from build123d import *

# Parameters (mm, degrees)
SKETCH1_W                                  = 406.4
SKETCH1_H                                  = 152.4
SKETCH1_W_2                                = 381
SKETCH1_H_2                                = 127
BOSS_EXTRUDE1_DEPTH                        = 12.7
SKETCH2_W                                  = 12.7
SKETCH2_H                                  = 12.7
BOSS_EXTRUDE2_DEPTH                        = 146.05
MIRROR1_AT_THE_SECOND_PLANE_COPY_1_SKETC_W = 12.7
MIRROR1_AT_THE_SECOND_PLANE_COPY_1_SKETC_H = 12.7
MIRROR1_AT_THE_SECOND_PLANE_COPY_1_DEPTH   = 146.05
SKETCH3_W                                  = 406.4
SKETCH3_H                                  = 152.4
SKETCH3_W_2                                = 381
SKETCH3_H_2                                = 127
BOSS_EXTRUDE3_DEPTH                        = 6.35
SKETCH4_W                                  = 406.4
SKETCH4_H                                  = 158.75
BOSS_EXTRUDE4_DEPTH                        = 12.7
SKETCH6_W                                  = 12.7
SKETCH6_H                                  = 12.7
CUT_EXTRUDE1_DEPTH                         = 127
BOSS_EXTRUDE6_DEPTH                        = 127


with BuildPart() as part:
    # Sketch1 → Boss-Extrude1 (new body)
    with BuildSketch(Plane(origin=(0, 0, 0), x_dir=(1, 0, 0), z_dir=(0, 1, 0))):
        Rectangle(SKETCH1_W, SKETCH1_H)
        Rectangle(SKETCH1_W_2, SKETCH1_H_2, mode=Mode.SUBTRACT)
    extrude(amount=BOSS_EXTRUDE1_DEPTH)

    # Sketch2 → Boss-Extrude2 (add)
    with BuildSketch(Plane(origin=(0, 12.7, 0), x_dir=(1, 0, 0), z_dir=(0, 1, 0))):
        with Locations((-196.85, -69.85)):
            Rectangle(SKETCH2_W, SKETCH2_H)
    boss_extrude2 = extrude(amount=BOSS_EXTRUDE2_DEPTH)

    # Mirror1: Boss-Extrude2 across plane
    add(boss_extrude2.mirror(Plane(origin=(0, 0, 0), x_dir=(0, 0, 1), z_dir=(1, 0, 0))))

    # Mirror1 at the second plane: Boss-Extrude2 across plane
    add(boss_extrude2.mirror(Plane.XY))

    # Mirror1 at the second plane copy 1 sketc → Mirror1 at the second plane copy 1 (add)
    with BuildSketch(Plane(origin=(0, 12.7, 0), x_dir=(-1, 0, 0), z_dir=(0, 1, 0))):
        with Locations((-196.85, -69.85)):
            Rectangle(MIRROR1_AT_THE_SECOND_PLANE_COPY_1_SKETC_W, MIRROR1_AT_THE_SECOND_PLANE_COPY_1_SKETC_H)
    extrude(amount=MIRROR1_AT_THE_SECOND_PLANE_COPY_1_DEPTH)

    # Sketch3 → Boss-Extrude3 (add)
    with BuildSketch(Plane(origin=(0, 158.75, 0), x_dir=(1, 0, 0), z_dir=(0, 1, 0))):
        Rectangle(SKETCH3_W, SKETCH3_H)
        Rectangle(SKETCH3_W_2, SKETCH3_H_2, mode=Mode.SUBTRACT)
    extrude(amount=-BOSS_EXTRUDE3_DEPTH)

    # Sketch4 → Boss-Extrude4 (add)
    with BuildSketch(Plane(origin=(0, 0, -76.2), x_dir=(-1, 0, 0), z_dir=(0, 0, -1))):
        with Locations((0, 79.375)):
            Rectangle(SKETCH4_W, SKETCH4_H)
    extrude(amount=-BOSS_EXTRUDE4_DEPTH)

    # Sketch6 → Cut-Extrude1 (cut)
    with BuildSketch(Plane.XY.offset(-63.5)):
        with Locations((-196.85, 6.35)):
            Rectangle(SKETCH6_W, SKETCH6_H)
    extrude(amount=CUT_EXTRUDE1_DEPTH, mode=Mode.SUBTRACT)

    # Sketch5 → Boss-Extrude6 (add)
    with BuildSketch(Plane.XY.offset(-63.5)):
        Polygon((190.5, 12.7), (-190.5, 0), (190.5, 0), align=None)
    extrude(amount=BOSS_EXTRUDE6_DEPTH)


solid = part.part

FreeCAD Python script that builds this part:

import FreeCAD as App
import Part
import Sketcher
Q = App.Units.Quantity

doc = App.newDocument("Part")
params = doc.addObject("Spreadsheet::Sheet", "Params")
for row, (alias, value) in enumerate([
    ("sketch1_width", "16 in"),
    ("sketch1_width2", "15 in"),
    ("sketch1_height", "6 in"),
    ("sketch1_height2", "5 in"),
    ("pad1_length", "0.5 in"),
    ("sketch2_width", "0.5 in"),
    ("pad2_length", "5.75 in"),
    ("sketch3_width", "0.5 in"),
    ("pad3_length", "5.75 in"),
    ("sketch4_width", "16 in"),
    ("sketch4_width2", "15 in"),
    ("sketch4_height", "6 in"),
    ("sketch4_height2", "5 in"),
    ("pad4_length", "0.25 in"),
    ("sketch5_width", "16 in"),
    ("sketch5_height", "6.25 in"),
    ("pad5_length", "0.5 in"),
    ("sketch6_width", "0.5 in"),
    ("pocket1_length", "5 in"),
    ("sketch7_width", "15 in"),
    ("sketch7_height", "0.5 in"),
    ("pad6_length", "5 in"),
], start=1):
    params.set(f"A{row}", alias)
    params.set(f"B{row}", "=" + value)
    params.setAlias(f"B{row}", alias)

body = doc.addObject("PartDesign::Body", "Body")

# Sketch on XZ plane
sketch1 = body.newObject("Sketcher::SketchObject", "Sketch")
sketch1.AttachmentSupport = (doc.getObject("XZ_Plane"), [""])
sketch1.MapMode = "FlatFace"
sketch1.addGeometry(Part.LineSegment(App.Vector(-203, -76, 0), App.Vector(-203, 76, 0)), False)
sketch1.addGeometry(Part.LineSegment(App.Vector(-203, 76, 0), App.Vector(203, 76, 0)), False)
sketch1.addGeometry(Part.LineSegment(App.Vector(203, 76, 0), App.Vector(203, -76, 0)), False)
sketch1.addGeometry(Part.LineSegment(App.Vector(203, -76, 0), App.Vector(-203, -76, 0)), False)
sketch1.addGeometry(Part.LineSegment(App.Vector(190, 64, 0), App.Vector(-190, 64, 0)), False)
sketch1.addGeometry(Part.LineSegment(App.Vector(-190, 64, 0), App.Vector(-190, -64, 0)), False)
sketch1.addGeometry(Part.LineSegment(App.Vector(-190, -64, 0), App.Vector(190, -64, 0)), False)
sketch1.addGeometry(Part.LineSegment(App.Vector(190, -64, 0), App.Vector(190, 64, 0)), False)
sketch1.addConstraint(Sketcher.Constraint("Coincident", 0, 2, 1, 1))
sketch1.addConstraint(Sketcher.Constraint("Coincident", 1, 2, 2, 1))
sketch1.addConstraint(Sketcher.Constraint("Coincident", 2, 2, 3, 1))
sketch1.addConstraint(Sketcher.Constraint("Coincident", 3, 2, 0, 1))
sketch1.addConstraint(Sketcher.Constraint("Coincident", 4, 2, 5, 1))
sketch1.addConstraint(Sketcher.Constraint("Coincident", 5, 2, 6, 1))
sketch1.addConstraint(Sketcher.Constraint("Coincident", 6, 2, 7, 1))
sketch1.addConstraint(Sketcher.Constraint("Coincident", 7, 2, 4, 1))
sketch1.addConstraint(Sketcher.Constraint("Vertical", 0))
sketch1.addConstraint(Sketcher.Constraint("Horizontal", 1))
sketch1.addConstraint(Sketcher.Constraint("Vertical", 2))
sketch1.addConstraint(Sketcher.Constraint("Horizontal", 3))
sketch1.addConstraint(Sketcher.Constraint("Horizontal", 4))
sketch1.addConstraint(Sketcher.Constraint("Vertical", 5))
sketch1.addConstraint(Sketcher.Constraint("Horizontal", 6))
sketch1.addConstraint(Sketcher.Constraint("Vertical", 7))
sketch1.addConstraint(Sketcher.Constraint("Symmetric", 0, 2, 2, 2, -1, 1))
sketch1.addConstraint(Sketcher.Constraint("Symmetric", 4, 2, 6, 2, -1, 1))
sketch1.addConstraint(Sketcher.Constraint("DistanceX", 1, 1, 1, 2, Q("16 in")))
sketch1.addConstraint(Sketcher.Constraint("DistanceX", 4, 2, 4, 1, Q("15 in")))
sketch1.addConstraint(Sketcher.Constraint("DistanceY", 0, 1, 0, 2, Q("6 in")))
sketch1.addConstraint(Sketcher.Constraint("DistanceY", 5, 2, 5, 1, Q("5 in")))
sketch1.setExpression("Constraints[18]", "Params.sketch1_width")
sketch1.setExpression("Constraints[19]", "Params.sketch1_width2")
sketch1.setExpression("Constraints[20]", "Params.sketch1_height")
sketch1.setExpression("Constraints[21]", "Params.sketch1_height2")
pad1 = body.newObject("PartDesign::Pad", "Pad")
pad1.Profile = sketch1
pad1.setExpression("Length", "Params.pad1_length")
pad1.Reversed = True

# Sketch on XZ plane
sketch2 = body.newObject("Sketcher::SketchObject", "Sketch001")
sketch2.AttachmentSupport = (doc.getObject("XZ_Plane"), [""])
sketch2.MapMode = "FlatFace"
sketch2.AttachmentOffset = App.Placement(App.Vector(0, 0, -0.5 * 25.4), App.Rotation())
sketch2.addGeometry(Part.LineSegment(App.Vector(-203, 64, 0), App.Vector(-203, 76, 0)), False)
sketch2.addGeometry(Part.LineSegment(App.Vector(-203, 76, 0), App.Vector(-190, 76, 0)), False)
sketch2.addGeometry(Part.LineSegment(App.Vector(-190, 76, 0), App.Vector(-190, 64, 0)), False)
sketch2.addGeometry(Part.LineSegment(App.Vector(-190, 64, 0), App.Vector(-203, 64, 0)), False)
sketch2.addConstraint(Sketcher.Constraint("Coincident", 0, 2, 1, 1))
sketch2.addConstraint(Sketcher.Constraint("Coincident", 1, 2, 2, 1))
sketch2.addConstraint(Sketcher.Constraint("Coincident", 2, 2, 3, 1))
sketch2.addConstraint(Sketcher.Constraint("Coincident", 3, 2, 0, 1))
sketch2.addConstraint(Sketcher.Constraint("Vertical", 0))
sketch2.addConstraint(Sketcher.Constraint("Horizontal", 1))
sketch2.addConstraint(Sketcher.Constraint("Vertical", 2))
sketch2.addConstraint(Sketcher.Constraint("Horizontal", 3))
sketch2.addConstraint(Sketcher.Constraint("Equal", 3, 0))
sketch2.addConstraint(Sketcher.Constraint("DistanceX", 1, 1, 1, 2, Q("0.5 in")))
sketch2.addConstraint(Sketcher.Constraint("DistanceX", 0, 2, -1, 1, Q("8 in")))
sketch2.addConstraint(Sketcher.Constraint("DistanceY", -1, 1, 0, 2, Q("3 in")))
sketch2.setExpression("Constraints[9]", "Params.sketch2_width")
pad2 = body.newObject("PartDesign::Pad", "Pad001")
pad2.Profile = sketch2
pad2.setExpression("Length", "Params.pad2_length")
pad2.Reversed = True
doc.recompute()

mirrored = body.newObject("PartDesign::Mirrored", "Mirrored")
mirrored.Originals = [pad2]
mirrored.MirrorPlane = (doc.getObject("YZ_Plane"), [""])
body.Tip = mirrored
doc.recompute()

mirrored2 = body.newObject("PartDesign::Mirrored", "Mirrored001")
mirrored2.Originals = [pad2]
mirrored2.MirrorPlane = (doc.getObject("XY_Plane"), [""])
body.Tip = mirrored2

# Sketch on XZ plane
sketch3 = body.newObject("Sketcher::SketchObject", "Sketch002")
sketch3.AttachmentSupport = (doc.getObject("XZ_Plane"), [""])
sketch3.MapMode = "FlatFace"
sketch3.AttachmentOffset = App.Placement(App.Vector(0, 0, -0.5 * 25.4), App.Rotation())
sketch3.addGeometry(Part.LineSegment(App.Vector(203, -64, 0), App.Vector(203, -76, 0)), False)
sketch3.addGeometry(Part.LineSegment(App.Vector(203, -76, 0), App.Vector(190, -76, 0)), False)
sketch3.addGeometry(Part.LineSegment(App.Vector(190, -76, 0), App.Vector(190, -64, 0)), False)
sketch3.addGeometry(Part.LineSegment(App.Vector(190, -64, 0), App.Vector(203, -64, 0)), False)
sketch3.addConstraint(Sketcher.Constraint("Coincident", 0, 2, 1, 1))
sketch3.addConstraint(Sketcher.Constraint("Coincident", 1, 2, 2, 1))
sketch3.addConstraint(Sketcher.Constraint("Coincident", 2, 2, 3, 1))
sketch3.addConstraint(Sketcher.Constraint("Coincident", 3, 2, 0, 1))
sketch3.addConstraint(Sketcher.Constraint("Vertical", 0))
sketch3.addConstraint(Sketcher.Constraint("Horizontal", 1))
sketch3.addConstraint(Sketcher.Constraint("Vertical", 2))
sketch3.addConstraint(Sketcher.Constraint("Horizontal", 3))
sketch3.addConstraint(Sketcher.Constraint("Equal", 3, 0))
sketch3.addConstraint(Sketcher.Constraint("DistanceX", 1, 2, 1, 1, Q("0.5 in")))
sketch3.addConstraint(Sketcher.Constraint("DistanceX", -1, 1, 0, 2, Q("8 in")))
sketch3.addConstraint(Sketcher.Constraint("DistanceY", 0, 2, -1, 1, Q("3 in")))
sketch3.setExpression("Constraints[9]", "Params.sketch3_width")
pad3 = body.newObject("PartDesign::Pad", "Pad002")
pad3.Profile = sketch3
pad3.setExpression("Length", "Params.pad3_length")
pad3.Reversed = True

# Sketch on XZ plane
sketch4 = body.newObject("Sketcher::SketchObject", "Sketch003")
sketch4.AttachmentSupport = (doc.getObject("XZ_Plane"), [""])
sketch4.MapMode = "FlatFace"
sketch4.AttachmentOffset = App.Placement(App.Vector(0, 0, -6.25 * 25.4), App.Rotation())
sketch4.addGeometry(Part.LineSegment(App.Vector(-203, -76, 0), App.Vector(-203, 76, 0)), False)
sketch4.addGeometry(Part.LineSegment(App.Vector(-203, 76, 0), App.Vector(203, 76, 0)), False)
sketch4.addGeometry(Part.LineSegment(App.Vector(203, 76, 0), App.Vector(203, -76, 0)), False)
sketch4.addGeometry(Part.LineSegment(App.Vector(203, -76, 0), App.Vector(-203, -76, 0)), False)
sketch4.addGeometry(Part.LineSegment(App.Vector(190, 64, 0), App.Vector(-190, 64, 0)), False)
sketch4.addGeometry(Part.LineSegment(App.Vector(-190, 64, 0), App.Vector(-190, -64, 0)), False)
sketch4.addGeometry(Part.LineSegment(App.Vector(-190, -64, 0), App.Vector(190, -64, 0)), False)
sketch4.addGeometry(Part.LineSegment(App.Vector(190, -64, 0), App.Vector(190, 64, 0)), False)
sketch4.addConstraint(Sketcher.Constraint("Coincident", 0, 2, 1, 1))
sketch4.addConstraint(Sketcher.Constraint("Coincident", 1, 2, 2, 1))
sketch4.addConstraint(Sketcher.Constraint("Coincident", 2, 2, 3, 1))
sketch4.addConstraint(Sketcher.Constraint("Coincident", 3, 2, 0, 1))
sketch4.addConstraint(Sketcher.Constraint("Coincident", 4, 2, 5, 1))
sketch4.addConstraint(Sketcher.Constraint("Coincident", 5, 2, 6, 1))
sketch4.addConstraint(Sketcher.Constraint("Coincident", 6, 2, 7, 1))
sketch4.addConstraint(Sketcher.Constraint("Coincident", 7, 2, 4, 1))
sketch4.addConstraint(Sketcher.Constraint("Vertical", 0))
sketch4.addConstraint(Sketcher.Constraint("Horizontal", 1))
sketch4.addConstraint(Sketcher.Constraint("Vertical", 2))
sketch4.addConstraint(Sketcher.Constraint("Horizontal", 3))
sketch4.addConstraint(Sketcher.Constraint("Horizontal", 4))
sketch4.addConstraint(Sketcher.Constraint("Vertical", 5))
sketch4.addConstraint(Sketcher.Constraint("Horizontal", 6))
sketch4.addConstraint(Sketcher.Constraint("Vertical", 7))
sketch4.addConstraint(Sketcher.Constraint("Symmetric", 0, 2, 2, 2, -1, 1))
sketch4.addConstraint(Sketcher.Constraint("Symmetric", 4, 2, 6, 2, -1, 1))
sketch4.addConstraint(Sketcher.Constraint("DistanceX", 1, 1, 1, 2, Q("16 in")))
sketch4.addConstraint(Sketcher.Constraint("DistanceX", 4, 2, 4, 1, Q("15 in")))
sketch4.addConstraint(Sketcher.Constraint("DistanceY", 0, 1, 0, 2, Q("6 in")))
sketch4.addConstraint(Sketcher.Constraint("DistanceY", 5, 2, 5, 1, Q("5 in")))
sketch4.setExpression("Constraints[18]", "Params.sketch4_width")
sketch4.setExpression("Constraints[19]", "Params.sketch4_width2")
sketch4.setExpression("Constraints[20]", "Params.sketch4_height")
sketch4.setExpression("Constraints[21]", "Params.sketch4_height2")
pad4 = body.newObject("PartDesign::Pad", "Pad003")
pad4.Profile = sketch4
pad4.setExpression("Length", "Params.pad4_length")

# Sketch on XY plane
sketch5 = body.newObject("Sketcher::SketchObject", "Sketch004")
sketch5.AttachmentSupport = (doc.getObject("XY_Plane"), [""])
sketch5.MapMode = "FlatFace"
sketch5.AttachmentOffset = App.Placement(App.Vector(0, 0, -3 * 25.4), App.Rotation())
sketch5.addGeometry(Part.LineSegment(App.Vector(203, 159, 0), App.Vector(203, 0, 0)), False)
sketch5.addGeometry(Part.LineSegment(App.Vector(203, 0, 0), App.Vector(-203, 0, 0)), False)
sketch5.addGeometry(Part.LineSegment(App.Vector(-203, 0, 0), App.Vector(-203, 159, 0)), False)
sketch5.addGeometry(Part.LineSegment(App.Vector(-203, 159, 0), App.Vector(203, 159, 0)), False)
sketch5.addConstraint(Sketcher.Constraint("Coincident", 0, 2, 1, 1))
sketch5.addConstraint(Sketcher.Constraint("Coincident", 1, 2, 2, 1))
sketch5.addConstraint(Sketcher.Constraint("Coincident", 2, 2, 3, 1))
sketch5.addConstraint(Sketcher.Constraint("Coincident", 3, 2, 0, 1))
sketch5.addConstraint(Sketcher.Constraint("Vertical", 0))
sketch5.addConstraint(Sketcher.Constraint("Horizontal", 1))
sketch5.addConstraint(Sketcher.Constraint("Vertical", 2))
sketch5.addConstraint(Sketcher.Constraint("Horizontal", 3))
sketch5.addConstraint(Sketcher.Constraint("Symmetric", 0, 2, 1, 2, -1, 1))
sketch5.addConstraint(Sketcher.Constraint("DistanceX", 1, 2, 1, 1, Q("16 in")))
sketch5.addConstraint(Sketcher.Constraint("DistanceY", 0, 2, 0, 1, Q("6.25 in")))
sketch5.setExpression("Constraints[9]", "Params.sketch5_width")
sketch5.setExpression("Constraints[10]", "Params.sketch5_height")
pad5 = body.newObject("PartDesign::Pad", "Pad004")
pad5.Profile = sketch5
pad5.setExpression("Length", "Params.pad5_length")

# Sketch on XY plane
sketch6 = body.newObject("Sketcher::SketchObject", "Sketch005")
sketch6.AttachmentSupport = (doc.getObject("XY_Plane"), [""])
sketch6.MapMode = "FlatFace"
sketch6.AttachmentOffset = App.Placement(App.Vector(0, 0, -2.5 * 25.4), App.Rotation())
sketch6.addGeometry(Part.LineSegment(App.Vector(-203, 13, 0), App.Vector(-203, 0, 0)), False)
sketch6.addGeometry(Part.LineSegment(App.Vector(-203, 0, 0), App.Vector(-190, 0, 0)), False)
sketch6.addGeometry(Part.LineSegment(App.Vector(-190, 0, 0), App.Vector(-190, 13, 0)), False)
sketch6.addGeometry(Part.LineSegment(App.Vector(-190, 13, 0), App.Vector(-203, 13, 0)), False)
sketch6.addConstraint(Sketcher.Constraint("Coincident", 0, 2, 1, 1))
sketch6.addConstraint(Sketcher.Constraint("Coincident", 1, 2, 2, 1))
sketch6.addConstraint(Sketcher.Constraint("Coincident", 2, 2, 3, 1))
sketch6.addConstraint(Sketcher.Constraint("Coincident", 3, 2, 0, 1))
sketch6.addConstraint(Sketcher.Constraint("Vertical", 0))
sketch6.addConstraint(Sketcher.Constraint("Horizontal", 1))
sketch6.addConstraint(Sketcher.Constraint("Vertical", 2))
sketch6.addConstraint(Sketcher.Constraint("Horizontal", 3))
sketch6.addConstraint(Sketcher.Constraint("PointOnObject", 0, 2, -1))
sketch6.addConstraint(Sketcher.Constraint("Equal", 3, 0))
sketch6.addConstraint(Sketcher.Constraint("DistanceX", 1, 1, 1, 2, Q("0.5 in")))
sketch6.addConstraint(Sketcher.Constraint("DistanceX", 0, 2, -1, 1, Q("8 in")))
sketch6.setExpression("Constraints[10]", "Params.sketch6_width")
pocket1 = body.newObject("PartDesign::Pocket", "Pocket")
pocket1.Profile = sketch6
pocket1.setExpression("Length", "Params.pocket1_length")
pocket1.Reversed = True

# Sketch on XY plane
sketch7 = body.newObject("Sketcher::SketchObject", "Sketch006")
sketch7.AttachmentSupport = (doc.getObject("XY_Plane"), [""])
sketch7.MapMode = "FlatFace"
sketch7.AttachmentOffset = App.Placement(App.Vector(0, 0, -2.5 * 25.4), App.Rotation())
sketch7.addGeometry(Part.LineSegment(App.Vector(190, 13, 0), App.Vector(-190, 0, 0)), False)
sketch7.addGeometry(Part.LineSegment(App.Vector(-190, 0, 0), App.Vector(190, 0, 0)), False)
sketch7.addGeometry(Part.LineSegment(App.Vector(190, 0, 0), App.Vector(190, 13, 0)), False)
sketch7.addConstraint(Sketcher.Constraint("Coincident", 0, 2, 1, 1))
sketch7.addConstraint(Sketcher.Constraint("Coincident", 1, 2, 2, 1))
sketch7.addConstraint(Sketcher.Constraint("Coincident", 2, 2, 0, 1))
sketch7.addConstraint(Sketcher.Constraint("Horizontal", 1))
sketch7.addConstraint(Sketcher.Constraint("Vertical", 2))
sketch7.addConstraint(Sketcher.Constraint("Symmetric", 0, 2, 1, 2, -1, 1))
sketch7.addConstraint(Sketcher.Constraint("DistanceX", 1, 1, 1, 2, Q("15 in")))
sketch7.addConstraint(Sketcher.Constraint("DistanceY", 2, 1, 2, 2, Q("0.5 in")))
sketch7.setExpression("Constraints[6]", "Params.sketch7_width")
sketch7.setExpression("Constraints[7]", "Params.sketch7_height")
pad6 = body.newObject("PartDesign::Pad", "Pad005")
pad6.Profile = sketch7
pad6.setExpression("Length", "Params.pad6_length")

doc.recompute()
